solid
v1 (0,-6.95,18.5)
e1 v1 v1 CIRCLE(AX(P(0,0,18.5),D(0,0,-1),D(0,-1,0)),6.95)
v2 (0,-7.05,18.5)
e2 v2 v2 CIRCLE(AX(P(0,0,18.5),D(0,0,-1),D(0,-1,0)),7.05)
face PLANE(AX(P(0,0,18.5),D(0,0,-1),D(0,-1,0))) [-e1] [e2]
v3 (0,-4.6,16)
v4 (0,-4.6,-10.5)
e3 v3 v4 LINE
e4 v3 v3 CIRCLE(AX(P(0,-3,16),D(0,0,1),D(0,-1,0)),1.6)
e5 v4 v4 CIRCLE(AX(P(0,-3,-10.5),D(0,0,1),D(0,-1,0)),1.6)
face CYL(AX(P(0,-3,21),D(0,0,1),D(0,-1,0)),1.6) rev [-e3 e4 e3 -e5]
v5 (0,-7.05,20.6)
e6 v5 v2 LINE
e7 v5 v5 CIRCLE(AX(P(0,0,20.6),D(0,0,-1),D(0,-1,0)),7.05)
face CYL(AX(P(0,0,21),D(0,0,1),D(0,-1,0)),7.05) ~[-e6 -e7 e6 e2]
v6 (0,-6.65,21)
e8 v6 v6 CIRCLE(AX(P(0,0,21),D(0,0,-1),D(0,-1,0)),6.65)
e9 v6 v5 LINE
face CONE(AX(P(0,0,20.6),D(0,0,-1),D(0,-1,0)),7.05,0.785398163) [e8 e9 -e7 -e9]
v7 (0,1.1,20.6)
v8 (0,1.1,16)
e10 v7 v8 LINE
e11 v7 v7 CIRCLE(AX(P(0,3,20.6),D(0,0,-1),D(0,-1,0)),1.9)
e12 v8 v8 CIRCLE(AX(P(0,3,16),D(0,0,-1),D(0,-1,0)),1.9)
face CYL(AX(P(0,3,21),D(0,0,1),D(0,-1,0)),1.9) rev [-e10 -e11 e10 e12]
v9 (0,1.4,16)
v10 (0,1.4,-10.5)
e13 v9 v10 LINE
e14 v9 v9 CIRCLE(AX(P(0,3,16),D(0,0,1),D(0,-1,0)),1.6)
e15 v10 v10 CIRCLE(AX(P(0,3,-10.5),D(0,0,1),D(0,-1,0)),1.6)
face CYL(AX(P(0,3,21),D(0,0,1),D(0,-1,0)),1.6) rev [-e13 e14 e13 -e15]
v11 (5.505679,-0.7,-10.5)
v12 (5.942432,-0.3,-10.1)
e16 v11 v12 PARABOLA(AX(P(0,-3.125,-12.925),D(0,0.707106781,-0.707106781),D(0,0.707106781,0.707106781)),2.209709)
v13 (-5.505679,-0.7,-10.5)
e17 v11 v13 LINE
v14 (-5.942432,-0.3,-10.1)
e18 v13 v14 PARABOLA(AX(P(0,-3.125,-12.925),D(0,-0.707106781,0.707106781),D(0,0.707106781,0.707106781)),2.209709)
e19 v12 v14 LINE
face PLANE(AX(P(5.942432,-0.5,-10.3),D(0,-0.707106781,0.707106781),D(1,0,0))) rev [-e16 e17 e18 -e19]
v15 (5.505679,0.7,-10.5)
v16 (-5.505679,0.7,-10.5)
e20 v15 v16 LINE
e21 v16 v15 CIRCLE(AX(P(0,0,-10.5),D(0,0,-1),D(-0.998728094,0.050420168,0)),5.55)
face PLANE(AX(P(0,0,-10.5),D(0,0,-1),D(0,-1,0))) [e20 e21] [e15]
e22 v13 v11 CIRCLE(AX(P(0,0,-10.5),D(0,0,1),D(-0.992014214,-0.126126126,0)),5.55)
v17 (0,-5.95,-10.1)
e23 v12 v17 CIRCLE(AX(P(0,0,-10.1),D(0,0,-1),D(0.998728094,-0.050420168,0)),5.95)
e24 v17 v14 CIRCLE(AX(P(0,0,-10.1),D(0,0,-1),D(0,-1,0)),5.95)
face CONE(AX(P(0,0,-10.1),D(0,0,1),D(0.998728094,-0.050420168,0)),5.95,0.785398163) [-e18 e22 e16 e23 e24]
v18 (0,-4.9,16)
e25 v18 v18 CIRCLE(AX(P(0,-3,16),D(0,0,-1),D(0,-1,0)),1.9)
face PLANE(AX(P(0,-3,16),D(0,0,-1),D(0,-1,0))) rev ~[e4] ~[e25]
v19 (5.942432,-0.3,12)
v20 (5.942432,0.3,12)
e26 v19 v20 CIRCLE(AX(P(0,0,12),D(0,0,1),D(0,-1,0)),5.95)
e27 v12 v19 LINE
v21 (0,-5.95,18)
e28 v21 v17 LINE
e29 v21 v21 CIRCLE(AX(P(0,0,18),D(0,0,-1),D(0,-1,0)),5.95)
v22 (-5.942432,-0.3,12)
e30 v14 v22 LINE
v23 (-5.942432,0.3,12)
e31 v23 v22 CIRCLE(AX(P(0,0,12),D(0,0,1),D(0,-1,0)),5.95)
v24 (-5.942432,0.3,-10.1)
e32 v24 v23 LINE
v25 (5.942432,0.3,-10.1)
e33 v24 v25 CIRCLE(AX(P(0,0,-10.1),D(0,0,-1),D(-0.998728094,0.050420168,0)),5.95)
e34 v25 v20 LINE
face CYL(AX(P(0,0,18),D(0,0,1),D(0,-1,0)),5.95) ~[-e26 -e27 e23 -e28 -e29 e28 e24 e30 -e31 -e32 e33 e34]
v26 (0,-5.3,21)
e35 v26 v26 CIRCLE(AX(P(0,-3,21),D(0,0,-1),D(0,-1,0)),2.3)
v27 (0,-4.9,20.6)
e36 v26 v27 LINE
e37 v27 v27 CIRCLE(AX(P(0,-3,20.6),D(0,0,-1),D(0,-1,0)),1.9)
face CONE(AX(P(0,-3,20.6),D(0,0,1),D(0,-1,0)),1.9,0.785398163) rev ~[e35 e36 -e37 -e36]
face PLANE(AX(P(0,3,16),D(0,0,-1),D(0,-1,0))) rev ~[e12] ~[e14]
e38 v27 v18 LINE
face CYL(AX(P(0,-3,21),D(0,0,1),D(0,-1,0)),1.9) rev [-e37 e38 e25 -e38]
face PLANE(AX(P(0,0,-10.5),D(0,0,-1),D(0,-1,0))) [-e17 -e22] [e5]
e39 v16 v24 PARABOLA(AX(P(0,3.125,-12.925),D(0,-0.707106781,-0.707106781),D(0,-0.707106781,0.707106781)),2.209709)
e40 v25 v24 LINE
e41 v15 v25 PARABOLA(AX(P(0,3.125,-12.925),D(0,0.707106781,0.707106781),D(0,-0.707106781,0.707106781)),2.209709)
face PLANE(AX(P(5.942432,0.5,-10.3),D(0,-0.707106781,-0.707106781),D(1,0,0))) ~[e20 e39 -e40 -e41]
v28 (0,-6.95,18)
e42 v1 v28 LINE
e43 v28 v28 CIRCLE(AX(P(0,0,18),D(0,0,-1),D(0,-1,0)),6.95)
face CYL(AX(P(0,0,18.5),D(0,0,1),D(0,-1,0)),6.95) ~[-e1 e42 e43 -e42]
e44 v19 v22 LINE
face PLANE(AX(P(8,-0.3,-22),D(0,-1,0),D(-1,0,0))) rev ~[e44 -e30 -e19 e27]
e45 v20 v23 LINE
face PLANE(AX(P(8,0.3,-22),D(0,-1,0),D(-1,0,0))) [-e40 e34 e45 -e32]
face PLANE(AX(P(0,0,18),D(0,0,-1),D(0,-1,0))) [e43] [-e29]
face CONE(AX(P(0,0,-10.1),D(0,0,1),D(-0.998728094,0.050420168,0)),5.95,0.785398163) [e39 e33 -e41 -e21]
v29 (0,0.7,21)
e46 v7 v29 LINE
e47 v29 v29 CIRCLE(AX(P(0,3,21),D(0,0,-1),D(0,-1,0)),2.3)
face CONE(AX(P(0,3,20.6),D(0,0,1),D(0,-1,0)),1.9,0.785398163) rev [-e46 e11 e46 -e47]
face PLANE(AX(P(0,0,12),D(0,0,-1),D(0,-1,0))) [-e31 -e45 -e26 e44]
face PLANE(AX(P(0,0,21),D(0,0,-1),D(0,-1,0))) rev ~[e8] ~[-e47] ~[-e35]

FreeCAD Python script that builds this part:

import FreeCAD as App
import Part
import Sketcher
Q = App.Units.Quantity


def edges_at(feature, points):
    """Names of the edges that pass closest to the given points."""
    edges = feature.Shape.Edges
    near = lambda p: min(range(len(edges)), key=lambda i: edges[i].distToShape(Part.Vertex(*p))[0])
    return sorted({f"Edge{near(p) + 1}" for p in points})

doc = App.newDocument("Part")
body = doc.addObject("PartDesign::Body", "Body")

sketch1 = doc.addObject("Sketcher::SketchObject", "Sketch")
body.addObject(sketch1)
sketch1.AttachmentSupport = (doc.XY_Plane, [""])
sketch1.MapMode = "FlatFace"
sketch1.addGeometry(Part.Circle(App.Vector(0, 0, 0), App.Vector(0, 0, 1), 7), False)
sketch1.addConstraint([
    Sketcher.Constraint("Coincident", 0, 3, -1, 1),
    Sketcher.Constraint("Diameter", 0, Q("14.1 mm")),
])
pad1 = doc.addObject("PartDesign::Pad", "Pad")
body.addObject(pad1)
pad1.Profile = sketch1
pad1.Length = 2.5

sketch2 = doc.addObject("Sketcher::SketchObject", "Sketch001")
body.addObject(sketch2)
sketch2.AttachmentSupport = (doc.XY_Plane, [""])
sketch2.MapMode = "FlatFace"
sketch2.AttachmentOffset = App.Placement(App.Vector(0, 0, 2.5), App.Rotation())
sketch2.addGeometry(Part.Circle(App.Vector(0, 0, 0), App.Vector(0, 0, 1), 7), False)
sketch2.addConstraint([
    Sketcher.Constraint("Coincident", 0, 3, -1, 1),
    Sketcher.Constraint("Diameter", 0, Q("13.9 mm")),
])
pad2 = doc.addObject("PartDesign::Pad", "Pad001")
body.addObject(pad2)
pad2.Profile = sketch2
pad2.Length = 0.5

sketch3 = doc.addObject("Sketcher::SketchObject", "Sketch002")
body.addObject(sketch3)
sketch3.AttachmentSupport = (doc.XY_Plane, [""])
sketch3.MapMode = "FlatFace"
sketch3.AttachmentOffset = App.Placement(App.Vector(0, 0, 3), App.Rotation())
sketch3.addGeometry(Part.Circle(App.Vector(0, 0, 0), App.Vector(0, 0, 1), 6), False)
sketch3.addConstraint([
    Sketcher.Constraint("Coincident", 0, 3, -1, 1),
    Sketcher.Constraint("Diameter", 0, Q("11.9 mm")),
])
pad3 = doc.addObject("PartDesign::Pad", "Pad002")
body.addObject(pad3)
pad3.Profile = sketch3
pad3.Length = 28.5

sketch4 = doc.addObject("Sketcher::SketchObject", "Sketch003")
body.addObject(sketch4)
sketch4.AttachmentSupport = (doc.XY_Plane, [""])
sketch4.MapMode = "FlatFace"
sketch4.addGeometry([
    Part.Circle(App.Vector(-3, 0, 0), App.Vector(0, 0, 1), 1.9),
    Part.Circle(App.Vector(3, 0, 0), App.Vector(0, 0, 1), 1.9),
], False)
sketch4.addConstraint([
    Sketcher.Constraint("Equal", 0, 1),
    Sketcher.Constraint("Symmetric", 0, 3, 1, 3, -1, 1),
    Sketcher.Constraint("PointOnObject", 0, 3, -1),
    Sketcher.Constraint("Diameter", 0, Q("3.8 mm")),
    Sketcher.Constraint("DistanceX", 0, 3, -1, 1, Q("3 mm")),
])
pocket1 = doc.addObject("PartDesign::Pocket", "Pocket")
body.addObject(pocket1)
pocket1.Profile = sketch4
pocket1.Length = 5
pocket1.Reversed = True

sketch5 = doc.addObject("Sketcher::SketchObject", "Sketch004")
body.addObject(sketch5)
sketch5.AttachmentSupport = (doc.XY_Plane, [""])
sketch5.MapMode = "FlatFace"
sketch5.addGeometry([
    Part.Circle(App.Vector(-3, 0, 0), App.Vector(0, 0, 1), 1.6),
    Part.Circle(App.Vector(3, 0, 0), App.Vector(0, 0, 1), 1.6),
], False)
sketch5.addConstraint([
    Sketcher.Constraint("Equal", 0, 1),
    Sketcher.Constraint("Symmetric", 0, 3, 1, 3, -1, 1),
    Sketcher.Constraint("PointOnObject", 0, 3, -1),
    Sketcher.Constraint("Diameter", 0, Q("3.2 mm")),
    Sketcher.Constraint("DistanceX", 0, 3, -1, 1, Q("3 mm")),
])
pocket2 = doc.addObject("PartDesign::Pocket", "Pocket001")
body.addObject(pocket2)
pocket2.Profile = sketch5
pocket2.Type = "ThroughAll"
pocket2.Reversed = True

sketch6 = doc.addObject("Sketcher::SketchObject", "Sketch005")
body.addObject(sketch6)
sketch6.AttachmentSupport = (doc.XY_Plane, [""])
sketch6.MapMode = "FlatFace"
sketch6.AttachmentOffset = App.Placement(App.Vector(0, 0, 43), App.Rotation())
sketch6.addGeometry([
    Part.LineSegment(App.Vector(-0.3, 8, 0), App.Vector(-0.3, -8, 0)),
    Part.LineSegment(App.Vector(-0.3, -8, 0), App.Vector(0.3, -8, 0)),
    Part.LineSegment(App.Vector(0.3, -8, 0), App.Vector(0.3, 8, 0)),
    Part.LineSegment(App.Vector(0.3, 8, 0), App.Vector(-0.3, 8, 0)),
], False)
sketch6.addConstraint([
    Sketcher.Constraint("Coincident", 0, 2, 1, 1),
    Sketcher.Constraint("Coincident", 1, 2, 2, 1),
    Sketcher.Constraint("Coincident", 2, 2, 3, 1),
    Sketcher.Constraint("Coincident", 3, 2, 0, 1),
    Sketcher.Constraint("Vertical", 0),
    Sketcher.Constraint("Horizontal", 1),
    Sketcher.Constraint("Vertical", 2),
    Sketcher.Constraint("Horizontal", 3),
    Sketcher.Constraint("Symmetric", 0, 2, 2, 2, -1, 1),
    Sketcher.Constraint("DistanceY", 0, 2, 0, 1, Q("16 mm")),
    Sketcher.Constraint("DistanceX", 1, 1, 1, 2, Q("0.6 mm")),
])
pocket3 = doc.addObject("PartDesign::Pocket", "Pocket002")
body.addObject(pocket3)
pocket3.Profile = sketch6
pocket3.Length = 34
doc.recompute()

chamfer = doc.addObject("PartDesign::Chamfer", "Chamfer")
body.addObject(chamfer)
chamfer.Base = (pocket3, edges_at(pocket3, [
    (-0.3, 0, 31.5),
    (-5.95, 0, 31.5),
    (0.3, 0, 31.5),
    (4.312, -4.1, 31.5),
    (4.312, 4.1, 31.5),
]))
chamfer.Size = 0.4
doc.recompute()

chamfer2 = doc.addObject("PartDesign::Chamfer", "Chamfer001")
body.addObject(chamfer2)
chamfer2.Base = (chamfer, edges_at(chamfer, [(-7.05, 0, 0), (-4.9, 0, 0), (1.1, 0, 0)]))
chamfer2.Size = 0.4
body2 = doc.addObject("PartDesign::Body", "Body001")
doc.recompute()

body.Placement = App.Placement(App.Vector(0, 0, 0), App.Rotation(App.Vector(1, 0, 0), 180))
boolean = doc.addObject("PartDesign::Boolean", "Boolean")
body2.addObject(boolean)
boolean.Type = "Fuse"
boolean.addObjects([body])
body3 = doc.addObject("PartDesign::Body", "Body002")
doc.recompute()

body2.Placement = App.Placement(App.Vector(0, 0, 21), App.Rotation(App.Vector(0, 0, 1), 270))
boolean2 = doc.addObject("PartDesign::Boolean", "Boolean001")
body3.addObject(boolean2)
boolean2.Type = "Fuse"
boolean2.addObjects([body2])

doc.recompute()
